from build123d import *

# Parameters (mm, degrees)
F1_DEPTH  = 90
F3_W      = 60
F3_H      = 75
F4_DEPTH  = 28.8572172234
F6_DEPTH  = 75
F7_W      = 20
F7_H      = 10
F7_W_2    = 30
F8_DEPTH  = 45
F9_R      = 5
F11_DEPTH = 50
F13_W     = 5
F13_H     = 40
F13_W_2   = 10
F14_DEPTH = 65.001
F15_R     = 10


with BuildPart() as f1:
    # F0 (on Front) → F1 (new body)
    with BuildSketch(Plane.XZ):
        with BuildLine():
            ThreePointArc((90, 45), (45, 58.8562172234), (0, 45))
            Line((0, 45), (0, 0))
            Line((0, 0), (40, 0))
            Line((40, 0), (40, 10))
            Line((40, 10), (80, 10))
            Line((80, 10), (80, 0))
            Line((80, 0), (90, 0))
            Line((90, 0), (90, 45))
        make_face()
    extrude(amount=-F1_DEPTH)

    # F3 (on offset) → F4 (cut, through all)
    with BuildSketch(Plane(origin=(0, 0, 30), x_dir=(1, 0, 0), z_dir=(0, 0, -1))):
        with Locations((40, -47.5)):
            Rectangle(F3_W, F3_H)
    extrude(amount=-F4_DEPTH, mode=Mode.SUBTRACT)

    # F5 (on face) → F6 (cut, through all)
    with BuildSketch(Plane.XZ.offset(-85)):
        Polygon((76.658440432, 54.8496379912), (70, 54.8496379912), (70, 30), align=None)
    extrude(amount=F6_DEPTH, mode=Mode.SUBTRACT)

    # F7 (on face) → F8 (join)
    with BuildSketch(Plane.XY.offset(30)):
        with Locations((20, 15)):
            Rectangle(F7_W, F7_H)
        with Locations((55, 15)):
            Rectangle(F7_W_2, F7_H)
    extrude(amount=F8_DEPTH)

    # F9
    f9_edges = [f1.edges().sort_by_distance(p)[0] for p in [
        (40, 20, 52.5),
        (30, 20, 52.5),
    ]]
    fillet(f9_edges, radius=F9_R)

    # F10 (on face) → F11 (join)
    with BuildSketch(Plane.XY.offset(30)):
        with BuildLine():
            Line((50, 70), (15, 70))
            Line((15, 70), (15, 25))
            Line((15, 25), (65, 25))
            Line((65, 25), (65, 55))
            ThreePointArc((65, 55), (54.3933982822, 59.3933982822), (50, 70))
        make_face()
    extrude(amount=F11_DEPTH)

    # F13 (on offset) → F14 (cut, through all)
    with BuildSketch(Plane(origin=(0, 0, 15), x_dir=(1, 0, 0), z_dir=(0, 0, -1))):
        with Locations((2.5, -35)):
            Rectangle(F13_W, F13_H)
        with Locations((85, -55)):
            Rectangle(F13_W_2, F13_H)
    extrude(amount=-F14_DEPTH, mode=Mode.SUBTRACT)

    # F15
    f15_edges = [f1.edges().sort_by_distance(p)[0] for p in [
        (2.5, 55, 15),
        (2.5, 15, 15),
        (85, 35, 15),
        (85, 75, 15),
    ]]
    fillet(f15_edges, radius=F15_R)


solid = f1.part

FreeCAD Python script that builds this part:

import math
import FreeCAD as App
import Part
import Sketcher
from FreeCAD import Vector
Q = App.Units.Quantity


def edges_at(feature, points):
    """Names of the edges that pass closest to the given points."""
    edges = feature.Shape.Edges
    near = lambda p: min(range(len(edges)), key=lambda i: edges[i].distToShape(Part.Vertex(*p))[0])
    return sorted({f"Edge{near(p) + 1}" for p in points})

doc = App.newDocument("Part")
body = doc.addObject("PartDesign::Body", "Body")

sketch1 = body.newObject("Sketcher::SketchObject", "Sketch")
sketch1.AttachmentSupport = (doc.getObject("XZ_Plane"), [""])
sketch1.MapMode = "FlatFace"
sketch1.addGeometry([
    Part.ArcOfCircle(Part.Circle(Vector(45, -21, 0), Vector(0, 0, 1), 80), math.radians(56), math.radians(124)),
    Part.LineSegment(Vector(0, 45, 0), Vector(0, 0, 0)),
    Part.LineSegment(Vector(0, 0, 0), Vector(40, 0, 0)),
    Part.LineSegment(Vector(40, 0, 0), Vector(40, 10, 0)),
    Part.LineSegment(Vector(40, 10, 0), Vector(80, 10, 0)),
    Part.LineSegment(Vector(80, 10, 0), Vector(80, 0, 0)),
    Part.LineSegment(Vector(80, 0, 0), Vector(90, 0, 0)),
    Part.LineSegment(Vector(90, 0, 0), Vector(90, 45, 0)),
], False)
sketch1.addConstraint([
    Sketcher.Constraint("Coincident", 0, 2, 1, 1),
    Sketcher.Constraint("Coincident", 1, 2, 2, 1),
    Sketcher.Constraint("Coincident", 2, 2, 3, 1),
    Sketcher.Constraint("Coincident", 3, 2, 4, 1),
    Sketcher.Constraint("Coincident", 4, 2, 5, 1),
    Sketcher.Constraint("Coincident", 5, 2, 6, 1),
    Sketcher.Constraint("Coincident", 6, 2, 7, 1),
    Sketcher.Constraint("Coincident", 7, 2, 0, 1),
    Sketcher.Constraint("Vertical", 1),
    Sketcher.Constraint("Horizontal", 2),
    Sketcher.Constraint("Vertical", 3),
    Sketcher.Constraint("Horizontal", 4),
    Sketcher.Constraint("Vertical", 5),
    Sketcher.Constraint("Horizontal", 6),
    Sketcher.Constraint("Vertical", 7),
    Sketcher.Constraint("Coincident", 1, 2, -1, 1),
    Sketcher.Constraint("PointOnObject", 5, 2, -1),
    Sketcher.Constraint("Horizontal", 0, 2, 7, 2),
    Sketcher.Constraint("Equal", 2, 4),
    Sketcher.Constraint("Equal", 6, 3),
    Sketcher.Constraint("Radius", 0, Q("80 mm")),
    Sketcher.Constraint("DistanceX", 2, 1, 2, 2, Q("40 mm")),
    Sketcher.Constraint("DistanceX", 6, 1, 6, 2, Q("10 mm")),
    Sketcher.Constraint("DistanceY", 1, 2, 1, 1, Q("45 mm")),
])
pad1 = body.newObject("PartDesign::Pad", "Pad")
pad1.Profile = sketch1
pad1.Length = 90
pad1.Reversed = True

sketch2 = body.newObject("Sketcher::SketchObject", "Sketch001")
sketch2.AttachmentSupport = (doc.getObject("XY_Plane"), [""])
sketch2.MapMode = "FlatFace"
sketch2.AttachmentOffset = App.Placement(Vector(0, 0, 30), App.Rotation())
sketch2.addGeometry([
    Part.LineSegment(Vector(10, 10, 0), Vector(10, 85, 0)),
    Part.LineSegment(Vector(10, 85, 0), Vector(70, 85, 0)),
    Part.LineSegment(Vector(70, 85, 0), Vector(70, 10, 0)),
    Part.LineSegment(Vector(70, 10, 0), Vector(10, 10, 0)),
], False)
sketch2.addConstraint([
    Sketcher.Constraint("Coincident", 0, 2, 1, 1),
    Sketcher.Constraint("Coincident", 1, 2, 2, 1),
    Sketcher.Constraint("Coincident", 2, 2, 3, 1),
    Sketcher.Constraint("Coincident", 3, 2, 0, 1),
    Sketcher.Constraint("Vertical", 0),
    Sketcher.Constraint("Horizontal", 1),
    Sketcher.Constraint("Vertical", 2),
    Sketcher.Constraint("Horizontal", 3),
    Sketcher.Constraint("DistanceX", 1, 1, 1, 2, Q("60 mm")),
    Sketcher.Constraint("DistanceY", 0, 1, 0, 2, Q("75 mm")),
    Sketcher.Constraint("DistanceX", -1, 1, 0, 2, Q("10 mm")),
    Sketcher.Constraint("DistanceY", -1, 1, 0, 2, Q("85 mm")),
])
pocket1 = body.newObject("PartDesign::Pocket", "Pocket")
pocket1.Profile = sketch2
pocket1.Type = "ThroughAll"
pocket1.Reversed = True

sketch3 = body.newObject("Sketcher::SketchObject", "Sketch002")
sketch3.AttachmentSupport = (doc.getObject("XZ_Plane"), [""])
sketch3.MapMode = "FlatFace"
sketch3.AttachmentOffset = App.Placement(Vector(0, 0, -85), App.Rotation())
sketch3.addGeometry([
    Part.LineSegment(Vector(77, 55, 0), Vector(70, 55, 0)),
    Part.LineSegment(Vector(70, 55, 0), Vector(70, 30, 0)),
    Part.LineSegment(Vector(70, 30, 0), Vector(77, 55, 0)),
], False)
sketch3.addConstraint([
    Sketcher.Constraint("Coincident", 0, 2, 1, 1),
    Sketcher.Constraint("Coincident", 1, 2, 2, 1),
    Sketcher.Constraint("Coincident", 2, 2, 0, 1),
    Sketcher.Constraint("Horizontal", 0),
    Sketcher.Constraint("Vertical", 1),
    Sketcher.Constraint("Angle", 2, Q("75 deg")),
    Sketcher.Constraint("DistanceX", -1, 1, 0, 2, Q("70 mm")),
    Sketcher.Constraint("DistanceY", -1, 1, 1, 2, Q("30 mm")),
    Sketcher.Constraint("DistanceX", 0, 2, 0, 1, Q("6.65844 mm")),
])
pocket2 = body.newObject("PartDesign::Pocket", "Pocket001")
pocket2.Profile = sketch3
pocket2.Length = 75
pocket2.Reversed = True

sketch4 = body.newObject("Sketcher::SketchObject", "Sketch003")
sketch4.AttachmentSupport = (doc.getObject("XY_Plane"), [""])
sketch4.MapMode = "FlatFace"
sketch4.AttachmentOffset = App.Placement(Vector(0, 0, 30), App.Rotation())
sketch4.addGeometry([
    Part.LineSegment(Vector(10, 20, 0), Vector(10, 10, 0)),
    Part.LineSegment(Vector(10, 10, 0), Vector(30, 10, 0)),
    Part.LineSegment(Vector(30, 10, 0), Vector(30, 20, 0)),
    Part.LineSegment(Vector(30, 20, 0), Vector(10, 20, 0)),
    Part.LineSegment(Vector(40, 20, 0), Vector(40, 10, 0)),
    Part.LineSegment(Vector(40, 10, 0), Vector(70, 10, 0)),
    Part.LineSegment(Vector(70, 10, 0), Vector(70, 20, 0)),
    Part.LineSegment(Vector(70, 20, 0), Vector(40, 20, 0)),
], False)
sketch4.addConstraint([
    Sketcher.Constraint("Coincident", 0, 2, 1, 1),
    Sketcher.Constraint("Coincident", 1, 2, 2, 1),
    Sketcher.Constraint("Coincident", 2, 2, 3, 1),
    Sketcher.Constraint("Coincident", 3, 2, 0, 1),
    Sketcher.Constraint("Coincident", 4, 2, 5, 1),
    Sketcher.Constraint("Coincident", 5, 2, 6, 1),
    Sketcher.Constraint("Coincident", 6, 2, 7, 1),
    Sketcher.Constraint("Coincident", 7, 2, 4, 1),
    Sketcher.Constraint("Vertical", 0),
    Sketcher.Constraint("Horizontal", 1),
    Sketcher.Constraint("Vertical", 2),
    Sketcher.Constraint("Horizontal", 3),
    Sketcher.Constraint("Vertical", 4),
    Sketcher.Constraint("Horizontal", 5),
    Sketcher.Constraint("Vertical", 6),
    Sketcher.Constraint("Horizontal", 7),
    Sketcher.Constraint("Horizontal", 1, 2, 4, 2),
    Sketcher.Constraint("Horizontal", 3, 2, 6, 2),
    Sketcher.Constraint("DistanceX", 1, 1, 1, 2, Q("20 mm")),
    Sketcher.Constraint("DistanceX", 5, 1, 5, 2, Q("30 mm")),
    Sketcher.Constraint("DistanceY", 0, 2, 0, 1, Q("10 mm")),
    Sketcher.Constraint("DistanceX", -1, 1, 0, 2, Q("10 mm")),
    Sketcher.Constraint("DistanceY", -1, 1, 0, 2, Q("10 mm")),
    Sketcher.Constraint("DistanceX", -1, 1, 4, 2, Q("40 mm")),
])
pad2 = body.newObject("PartDesign::Pad", "Pad001")
pad2.Profile = sketch4
pad2.Length = 45
doc.recompute()

fillet = body.newObject("PartDesign::Fillet", "Fillet")
fillet.Base = (pad2, edges_at(pad2, [(40, 20, 52.5), (30, 20, 52.5)]))
fillet.Radius = 5

sketch5 = body.newObject("Sketcher::SketchObject", "Sketch004")
sketch5.AttachmentSupport = (doc.getObject("XY_Plane"), [""])
sketch5.MapMode = "FlatFace"
sketch5.AttachmentOffset = App.Placement(Vector(0, 0, 30), App.Rotation())
sketch5.addGeometry([
    Part.LineSegment(Vector(50, 70, 0), Vector(15, 70, 0)),
    Part.LineSegment(Vector(15, 70, 0), Vector(15, 25, 0)),
    Part.LineSegment(Vector(15, 25, 0), Vector(65, 25, 0)),
    Part.LineSegment(Vector(65, 25, 0), Vector(65, 55, 0)),
    Part.ArcOfCircle(Part.Circle(Vector(65, 70, 0), Vector(0, 0, 1), 15), math.radians(180), math.radians(270)),
], False)
sketch5.addConstraint([
    Sketcher.Constraint("Coincident", 0, 2, 1, 1),
    Sketcher.Constraint("Coincident", 1, 2, 2, 1),
    Sketcher.Constraint("Coincident", 2, 2, 3, 1),
    Sketcher.Constraint("Coincident", 3, 2, 4, 2),
    Sketcher.Constraint("Coincident", 4, 1, 0, 1),
    Sketcher.Constraint("Horizontal", 0),
    Sketcher.Constraint("Vertical", 1),
    Sketcher.Constraint("Horizontal", 2),
    Sketcher.Constraint("Vertical", 3),
    Sketcher.Constraint("Horizontal", 4, 3, 0, 2),
    Sketcher.Constraint("Vertical", 4, 3, 2, 2),
    Sketcher.Constraint("Radius", 4, Q("15 mm")),
    Sketcher.Constraint("DistanceX", 0, 2, 0, 1, Q("35 mm")),
    Sketcher.Constraint("DistanceY", 1, 2, 1, 1, Q("45 mm")),
    Sketcher.Constraint("DistanceX", -1, 1, 4, 3, Q("65 mm")),
    Sketcher.Constraint("DistanceY", -1, 1, 4, 3, Q("70 mm")),
])
pad3 = body.newObject("PartDesign::Pad", "Pad002")
pad3.Profile = sketch5
pad3.Length = 50

sketch6 = body.newObject("Sketcher::SketchObject", "Sketch005")
sketch6.AttachmentSupport = (doc.getObject("XY_Plane"), [""])
sketch6.MapMode = "FlatFace"
sketch6.AttachmentOffset = App.Placement(Vector(0, 0, 15), App.Rotation())
sketch6.addGeometry([
    Part.LineSegment(Vector(0, 15, 0), Vector(0, 55, 0)),
    Part.LineSegment(Vector(0, 55, 0), Vector(5, 55, 0)),
    Part.LineSegment(Vector(5, 55, 0), Vector(5, 15, 0)),
    Part.LineSegment(Vector(5, 15, 0), Vector(0, 15, 0)),
    Part.LineSegment(Vector(80, 35, 0), Vector(80, 75, 0)),
    Part.LineSegment(Vector(80, 75, 0), Vector(90, 75, 0)),
    Part.LineSegment(Vector(90, 75, 0), Vector(90, 35, 0)),
    Part.LineSegment(Vector(90, 35, 0), Vector(80, 35, 0)),
], False)
sketch6.addConstraint([
    Sketcher.Constraint("Coincident", 0, 2, 1, 1),
    Sketcher.Constraint("Coincident", 1, 2, 2, 1),
    Sketcher.Constraint("Coincident", 2, 2, 3, 1),
    Sketcher.Constraint("Coincident", 3, 2, 0, 1),
    Sketcher.Constraint("Coincident", 4, 2, 5, 1),
    Sketcher.Constraint("Coincident", 5, 2, 6, 1),
    Sketcher.Constraint("Coincident", 6, 2, 7, 1),
    Sketcher.Constraint("Coincident", 7, 2, 4, 1),
    Sketcher.Constraint("Vertical", 0),
    Sketcher.Constraint("Horizontal", 1),
    Sketcher.Constraint("Vertical", 2),
    Sketcher.Constraint("Horizontal", 3),
    Sketcher.Constraint("Vertical", 4),
    Sketcher.Constraint("Horizontal", 5),
    Sketcher.Constraint("Vertical", 6),
    Sketcher.Constraint("Horizontal", 7),
    Sketcher.Constraint("PointOnObject", 0, 2, -2),
    Sketcher.Constraint("Equal", 2, 4),
    Sketcher.Constraint("DistanceX", 1, 1, 1, 2, Q("5 mm")),
    Sketcher.Constraint("DistanceX", 5, 1, 5, 2, Q("10 mm")),
    Sketcher.Constraint("DistanceY", 0, 1, 0, 2, Q("40 mm")),
    Sketcher.Constraint("DistanceY", -1, 1, 0, 2, Q("55 mm")),
    Sketcher.Constraint("DistanceX", -1, 1, 4, 2, Q("80 mm")),
    Sketcher.Constraint("DistanceY", -1, 1, 4, 2, Q("75 mm")),
])
pocket3 = body.newObject("PartDesign::Pocket", "Pocket002")
pocket3.Profile = sketch6
pocket3.Type = "ThroughAll"
pocket3.Reversed = True
doc.recompute()

fillet2 = body.newObject("PartDesign::Fillet", "Fillet001")
fillet2.Base = (pocket3, edges_at(pocket3, [
    (2.5, 55, 15),
    (2.5, 15, 15),
    (85, 35, 15),
    (85, 75, 15),
]))
fillet2.Radius = 10

doc.recompute()
